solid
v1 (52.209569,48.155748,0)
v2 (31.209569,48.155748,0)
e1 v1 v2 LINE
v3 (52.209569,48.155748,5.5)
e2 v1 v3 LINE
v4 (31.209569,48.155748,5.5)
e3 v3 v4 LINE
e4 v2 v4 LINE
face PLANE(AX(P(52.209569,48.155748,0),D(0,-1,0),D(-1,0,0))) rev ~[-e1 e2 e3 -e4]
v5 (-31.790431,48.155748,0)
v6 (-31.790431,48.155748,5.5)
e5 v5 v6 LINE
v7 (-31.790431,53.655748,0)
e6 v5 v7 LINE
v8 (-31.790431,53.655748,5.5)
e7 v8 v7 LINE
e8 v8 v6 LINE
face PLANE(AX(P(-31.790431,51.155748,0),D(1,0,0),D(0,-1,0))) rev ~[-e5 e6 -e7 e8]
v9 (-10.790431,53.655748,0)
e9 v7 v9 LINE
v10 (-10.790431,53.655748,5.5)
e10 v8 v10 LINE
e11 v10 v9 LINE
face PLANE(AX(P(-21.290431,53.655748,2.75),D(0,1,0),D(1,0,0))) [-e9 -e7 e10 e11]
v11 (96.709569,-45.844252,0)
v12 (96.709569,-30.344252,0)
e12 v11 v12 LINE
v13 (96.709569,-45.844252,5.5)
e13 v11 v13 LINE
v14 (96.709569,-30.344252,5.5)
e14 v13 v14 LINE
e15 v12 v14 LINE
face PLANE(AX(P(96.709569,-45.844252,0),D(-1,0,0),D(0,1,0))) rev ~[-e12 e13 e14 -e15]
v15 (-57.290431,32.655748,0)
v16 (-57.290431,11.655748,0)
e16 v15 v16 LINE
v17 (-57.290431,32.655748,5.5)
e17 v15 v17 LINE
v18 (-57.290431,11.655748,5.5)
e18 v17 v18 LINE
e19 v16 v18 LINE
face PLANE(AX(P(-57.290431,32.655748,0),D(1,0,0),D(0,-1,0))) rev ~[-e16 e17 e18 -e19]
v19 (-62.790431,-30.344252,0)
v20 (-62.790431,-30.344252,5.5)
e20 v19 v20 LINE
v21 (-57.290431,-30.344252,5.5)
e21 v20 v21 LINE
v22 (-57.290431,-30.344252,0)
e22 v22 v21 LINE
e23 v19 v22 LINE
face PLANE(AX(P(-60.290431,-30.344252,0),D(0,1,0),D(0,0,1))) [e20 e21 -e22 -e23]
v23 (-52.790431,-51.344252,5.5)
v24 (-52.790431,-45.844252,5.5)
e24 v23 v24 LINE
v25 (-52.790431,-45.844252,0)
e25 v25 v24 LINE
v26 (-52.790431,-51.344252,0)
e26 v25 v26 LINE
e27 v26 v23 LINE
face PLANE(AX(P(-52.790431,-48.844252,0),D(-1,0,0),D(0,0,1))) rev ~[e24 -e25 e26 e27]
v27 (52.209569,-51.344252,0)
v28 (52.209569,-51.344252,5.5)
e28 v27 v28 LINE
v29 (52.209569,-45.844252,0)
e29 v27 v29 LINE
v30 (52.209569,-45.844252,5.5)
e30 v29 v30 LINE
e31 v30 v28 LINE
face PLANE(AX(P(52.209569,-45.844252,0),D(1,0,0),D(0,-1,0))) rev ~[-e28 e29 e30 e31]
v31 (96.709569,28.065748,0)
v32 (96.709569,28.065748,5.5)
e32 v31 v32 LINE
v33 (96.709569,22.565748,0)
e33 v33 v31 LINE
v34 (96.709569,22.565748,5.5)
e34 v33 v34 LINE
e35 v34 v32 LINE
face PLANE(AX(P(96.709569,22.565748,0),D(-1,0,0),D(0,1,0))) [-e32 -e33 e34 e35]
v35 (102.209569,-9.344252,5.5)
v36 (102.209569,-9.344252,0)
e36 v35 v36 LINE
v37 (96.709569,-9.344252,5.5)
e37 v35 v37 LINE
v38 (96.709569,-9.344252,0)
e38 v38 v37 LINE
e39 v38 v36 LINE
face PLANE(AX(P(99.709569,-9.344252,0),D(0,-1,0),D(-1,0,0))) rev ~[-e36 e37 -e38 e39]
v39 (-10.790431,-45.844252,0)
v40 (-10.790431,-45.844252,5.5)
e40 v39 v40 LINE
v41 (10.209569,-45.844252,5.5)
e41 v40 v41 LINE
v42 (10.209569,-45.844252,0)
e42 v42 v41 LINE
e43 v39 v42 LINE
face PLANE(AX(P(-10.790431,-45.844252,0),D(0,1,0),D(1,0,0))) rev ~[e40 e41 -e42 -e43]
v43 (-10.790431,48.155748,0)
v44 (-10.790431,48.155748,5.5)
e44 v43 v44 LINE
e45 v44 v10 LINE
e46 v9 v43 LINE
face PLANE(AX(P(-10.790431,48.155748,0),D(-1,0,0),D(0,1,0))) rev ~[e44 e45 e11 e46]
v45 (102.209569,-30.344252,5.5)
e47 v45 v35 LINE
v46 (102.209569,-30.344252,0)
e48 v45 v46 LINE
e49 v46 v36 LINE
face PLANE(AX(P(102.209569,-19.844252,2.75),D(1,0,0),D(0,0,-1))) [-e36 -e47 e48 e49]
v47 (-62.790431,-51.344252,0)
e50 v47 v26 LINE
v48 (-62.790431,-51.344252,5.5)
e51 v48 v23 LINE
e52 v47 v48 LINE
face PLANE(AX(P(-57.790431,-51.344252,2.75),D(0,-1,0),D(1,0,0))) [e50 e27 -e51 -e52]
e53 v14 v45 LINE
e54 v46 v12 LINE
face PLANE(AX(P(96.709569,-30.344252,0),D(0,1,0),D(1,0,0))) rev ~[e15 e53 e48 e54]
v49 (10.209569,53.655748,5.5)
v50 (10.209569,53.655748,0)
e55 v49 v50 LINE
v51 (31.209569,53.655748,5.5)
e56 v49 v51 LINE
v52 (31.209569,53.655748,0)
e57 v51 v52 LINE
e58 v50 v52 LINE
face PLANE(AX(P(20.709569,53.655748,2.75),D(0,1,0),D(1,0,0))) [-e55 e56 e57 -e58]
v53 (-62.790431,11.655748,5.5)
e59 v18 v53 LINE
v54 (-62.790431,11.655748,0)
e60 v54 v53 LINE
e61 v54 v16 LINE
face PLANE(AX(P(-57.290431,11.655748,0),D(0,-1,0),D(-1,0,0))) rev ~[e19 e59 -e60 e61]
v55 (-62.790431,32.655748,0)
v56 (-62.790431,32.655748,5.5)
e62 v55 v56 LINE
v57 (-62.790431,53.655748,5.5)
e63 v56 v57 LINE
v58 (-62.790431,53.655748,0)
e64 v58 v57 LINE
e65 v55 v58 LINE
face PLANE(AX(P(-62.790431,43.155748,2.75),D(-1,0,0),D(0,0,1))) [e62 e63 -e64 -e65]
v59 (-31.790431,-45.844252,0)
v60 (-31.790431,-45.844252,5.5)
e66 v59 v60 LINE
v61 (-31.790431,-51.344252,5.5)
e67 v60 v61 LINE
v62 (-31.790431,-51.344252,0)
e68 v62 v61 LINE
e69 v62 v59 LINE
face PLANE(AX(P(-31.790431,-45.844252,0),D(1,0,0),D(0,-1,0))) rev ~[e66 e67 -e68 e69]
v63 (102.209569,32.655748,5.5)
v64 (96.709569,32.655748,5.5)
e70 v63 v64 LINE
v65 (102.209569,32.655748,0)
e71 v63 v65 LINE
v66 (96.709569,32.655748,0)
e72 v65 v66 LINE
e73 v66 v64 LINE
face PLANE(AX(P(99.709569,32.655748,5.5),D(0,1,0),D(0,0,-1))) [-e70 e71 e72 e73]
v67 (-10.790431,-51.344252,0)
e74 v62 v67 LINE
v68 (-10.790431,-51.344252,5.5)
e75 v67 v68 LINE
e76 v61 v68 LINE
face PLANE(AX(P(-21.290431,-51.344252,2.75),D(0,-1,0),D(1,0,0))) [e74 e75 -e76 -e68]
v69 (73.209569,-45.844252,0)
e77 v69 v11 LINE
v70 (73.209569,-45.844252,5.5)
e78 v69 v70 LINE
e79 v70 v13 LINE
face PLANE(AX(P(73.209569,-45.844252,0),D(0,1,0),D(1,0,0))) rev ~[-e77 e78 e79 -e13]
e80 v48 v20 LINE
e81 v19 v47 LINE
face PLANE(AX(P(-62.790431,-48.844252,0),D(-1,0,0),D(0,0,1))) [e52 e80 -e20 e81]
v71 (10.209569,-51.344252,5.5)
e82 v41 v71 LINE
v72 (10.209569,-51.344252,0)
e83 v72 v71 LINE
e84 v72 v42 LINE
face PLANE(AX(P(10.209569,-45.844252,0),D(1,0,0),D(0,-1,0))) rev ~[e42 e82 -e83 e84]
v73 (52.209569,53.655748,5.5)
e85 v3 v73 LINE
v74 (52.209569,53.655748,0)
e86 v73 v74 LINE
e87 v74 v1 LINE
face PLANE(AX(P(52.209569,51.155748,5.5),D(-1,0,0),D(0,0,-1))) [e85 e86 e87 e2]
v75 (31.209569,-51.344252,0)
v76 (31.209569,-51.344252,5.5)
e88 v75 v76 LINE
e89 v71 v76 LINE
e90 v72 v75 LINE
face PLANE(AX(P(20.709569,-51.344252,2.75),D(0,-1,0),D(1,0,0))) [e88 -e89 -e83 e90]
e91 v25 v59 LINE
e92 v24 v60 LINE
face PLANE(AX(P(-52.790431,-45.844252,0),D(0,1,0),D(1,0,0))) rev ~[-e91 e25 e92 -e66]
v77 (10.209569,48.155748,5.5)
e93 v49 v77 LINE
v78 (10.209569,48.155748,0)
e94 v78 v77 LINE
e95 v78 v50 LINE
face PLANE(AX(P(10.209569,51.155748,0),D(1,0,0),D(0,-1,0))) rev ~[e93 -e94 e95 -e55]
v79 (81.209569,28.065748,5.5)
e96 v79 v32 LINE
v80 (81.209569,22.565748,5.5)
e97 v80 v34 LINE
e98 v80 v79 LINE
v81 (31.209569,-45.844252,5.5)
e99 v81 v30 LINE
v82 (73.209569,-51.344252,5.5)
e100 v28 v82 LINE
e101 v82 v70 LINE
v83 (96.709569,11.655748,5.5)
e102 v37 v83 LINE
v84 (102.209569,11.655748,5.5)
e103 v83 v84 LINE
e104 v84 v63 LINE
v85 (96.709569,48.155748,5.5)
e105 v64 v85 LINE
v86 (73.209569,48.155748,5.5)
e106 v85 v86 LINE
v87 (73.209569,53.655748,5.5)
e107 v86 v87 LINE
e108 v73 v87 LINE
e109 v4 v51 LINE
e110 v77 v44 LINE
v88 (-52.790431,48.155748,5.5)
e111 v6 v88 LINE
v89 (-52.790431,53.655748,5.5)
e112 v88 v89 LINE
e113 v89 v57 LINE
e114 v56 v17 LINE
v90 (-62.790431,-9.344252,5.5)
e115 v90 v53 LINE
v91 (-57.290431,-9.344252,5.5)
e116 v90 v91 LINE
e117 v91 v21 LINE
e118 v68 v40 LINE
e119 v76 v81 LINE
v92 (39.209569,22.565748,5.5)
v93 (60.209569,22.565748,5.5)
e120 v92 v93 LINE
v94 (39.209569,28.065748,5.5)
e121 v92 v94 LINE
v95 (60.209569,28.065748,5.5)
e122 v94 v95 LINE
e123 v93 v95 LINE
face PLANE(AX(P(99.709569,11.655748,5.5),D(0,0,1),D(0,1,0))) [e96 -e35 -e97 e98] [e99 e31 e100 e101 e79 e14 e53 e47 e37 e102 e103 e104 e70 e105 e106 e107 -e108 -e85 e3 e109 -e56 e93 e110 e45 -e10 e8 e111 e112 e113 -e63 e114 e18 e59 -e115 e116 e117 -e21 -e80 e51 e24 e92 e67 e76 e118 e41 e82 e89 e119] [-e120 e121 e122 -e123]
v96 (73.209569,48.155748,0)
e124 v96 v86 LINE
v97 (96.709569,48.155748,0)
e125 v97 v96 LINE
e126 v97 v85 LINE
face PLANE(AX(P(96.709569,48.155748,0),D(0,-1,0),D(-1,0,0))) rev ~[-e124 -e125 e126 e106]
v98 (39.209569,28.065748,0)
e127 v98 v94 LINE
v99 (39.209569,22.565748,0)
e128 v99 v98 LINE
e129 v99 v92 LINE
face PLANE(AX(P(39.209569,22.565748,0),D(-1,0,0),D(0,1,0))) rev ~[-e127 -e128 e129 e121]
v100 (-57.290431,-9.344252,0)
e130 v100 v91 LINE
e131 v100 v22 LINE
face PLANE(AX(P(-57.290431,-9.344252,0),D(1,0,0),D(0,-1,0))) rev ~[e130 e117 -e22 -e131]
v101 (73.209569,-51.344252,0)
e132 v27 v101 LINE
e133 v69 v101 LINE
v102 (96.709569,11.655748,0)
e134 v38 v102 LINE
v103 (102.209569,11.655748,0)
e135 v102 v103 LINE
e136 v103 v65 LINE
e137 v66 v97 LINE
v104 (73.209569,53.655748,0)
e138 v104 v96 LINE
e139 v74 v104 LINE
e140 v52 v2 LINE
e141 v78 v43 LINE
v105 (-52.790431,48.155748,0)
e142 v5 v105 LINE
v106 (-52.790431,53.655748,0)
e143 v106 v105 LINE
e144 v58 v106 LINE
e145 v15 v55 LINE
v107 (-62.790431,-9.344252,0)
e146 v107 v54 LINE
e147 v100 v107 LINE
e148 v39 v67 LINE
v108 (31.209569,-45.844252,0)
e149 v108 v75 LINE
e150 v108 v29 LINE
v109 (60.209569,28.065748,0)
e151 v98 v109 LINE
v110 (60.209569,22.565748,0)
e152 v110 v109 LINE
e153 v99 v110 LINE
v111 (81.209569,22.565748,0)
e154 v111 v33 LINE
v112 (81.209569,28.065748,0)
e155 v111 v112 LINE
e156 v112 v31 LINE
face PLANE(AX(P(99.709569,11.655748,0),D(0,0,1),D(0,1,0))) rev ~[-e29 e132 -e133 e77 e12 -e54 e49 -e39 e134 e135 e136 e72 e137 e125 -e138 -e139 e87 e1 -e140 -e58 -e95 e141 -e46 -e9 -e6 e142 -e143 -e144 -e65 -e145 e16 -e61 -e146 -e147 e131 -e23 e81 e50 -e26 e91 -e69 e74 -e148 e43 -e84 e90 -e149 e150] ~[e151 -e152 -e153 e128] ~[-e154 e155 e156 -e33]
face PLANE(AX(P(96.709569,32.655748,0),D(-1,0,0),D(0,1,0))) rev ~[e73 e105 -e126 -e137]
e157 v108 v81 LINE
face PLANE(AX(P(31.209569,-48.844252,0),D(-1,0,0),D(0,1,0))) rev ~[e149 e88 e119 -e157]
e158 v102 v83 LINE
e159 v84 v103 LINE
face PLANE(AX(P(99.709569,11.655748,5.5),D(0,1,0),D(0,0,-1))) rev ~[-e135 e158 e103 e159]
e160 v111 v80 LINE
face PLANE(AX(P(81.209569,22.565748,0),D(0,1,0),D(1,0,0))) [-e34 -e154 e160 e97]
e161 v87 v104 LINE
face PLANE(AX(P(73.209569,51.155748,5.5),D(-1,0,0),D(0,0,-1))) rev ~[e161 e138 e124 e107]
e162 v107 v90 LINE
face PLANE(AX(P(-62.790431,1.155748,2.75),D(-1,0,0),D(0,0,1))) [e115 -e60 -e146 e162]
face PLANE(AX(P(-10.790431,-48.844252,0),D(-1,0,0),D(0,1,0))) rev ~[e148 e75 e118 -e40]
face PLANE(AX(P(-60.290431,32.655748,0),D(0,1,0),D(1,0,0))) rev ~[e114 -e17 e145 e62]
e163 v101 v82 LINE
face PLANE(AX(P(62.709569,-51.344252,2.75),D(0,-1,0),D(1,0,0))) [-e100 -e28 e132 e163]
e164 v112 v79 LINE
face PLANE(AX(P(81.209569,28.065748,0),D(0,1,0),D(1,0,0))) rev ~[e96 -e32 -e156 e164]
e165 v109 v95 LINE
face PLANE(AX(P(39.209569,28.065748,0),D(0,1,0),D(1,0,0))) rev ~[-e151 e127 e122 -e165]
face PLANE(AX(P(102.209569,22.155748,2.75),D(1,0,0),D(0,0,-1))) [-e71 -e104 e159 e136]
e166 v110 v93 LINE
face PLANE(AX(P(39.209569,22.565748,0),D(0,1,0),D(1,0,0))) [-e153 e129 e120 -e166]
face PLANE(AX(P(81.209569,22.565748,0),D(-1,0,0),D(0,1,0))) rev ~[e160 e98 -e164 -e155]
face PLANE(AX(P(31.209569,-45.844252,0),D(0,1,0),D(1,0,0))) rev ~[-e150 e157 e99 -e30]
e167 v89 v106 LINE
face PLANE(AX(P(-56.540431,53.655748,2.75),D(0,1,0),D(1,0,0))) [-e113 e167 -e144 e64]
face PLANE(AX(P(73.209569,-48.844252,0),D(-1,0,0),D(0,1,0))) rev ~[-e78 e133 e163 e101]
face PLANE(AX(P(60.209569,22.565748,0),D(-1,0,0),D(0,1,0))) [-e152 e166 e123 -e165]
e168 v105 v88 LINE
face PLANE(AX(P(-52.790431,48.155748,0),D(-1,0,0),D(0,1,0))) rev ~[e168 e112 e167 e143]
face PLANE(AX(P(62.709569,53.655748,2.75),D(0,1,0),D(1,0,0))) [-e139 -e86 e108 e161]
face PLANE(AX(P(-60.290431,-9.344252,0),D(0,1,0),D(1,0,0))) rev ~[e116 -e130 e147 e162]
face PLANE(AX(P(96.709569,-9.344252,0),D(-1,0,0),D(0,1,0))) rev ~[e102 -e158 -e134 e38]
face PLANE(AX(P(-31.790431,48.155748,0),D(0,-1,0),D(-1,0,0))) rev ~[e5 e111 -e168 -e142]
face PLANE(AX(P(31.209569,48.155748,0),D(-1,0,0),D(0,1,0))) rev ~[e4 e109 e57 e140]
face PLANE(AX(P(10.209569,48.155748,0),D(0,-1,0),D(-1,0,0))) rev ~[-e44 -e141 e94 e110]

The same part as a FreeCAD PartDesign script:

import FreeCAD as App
import Part
import Sketcher

V = App.Vector

doc = App.newDocument("Part")
body = doc.addObject("PartDesign::Body", "Body")

# Sketch on XY plane
sketch1 = doc.addObject("Sketcher::SketchObject", "Sketch")
body.addObject(sketch1)
sketch1.AttachmentSupport = (doc.XY_Plane, [""])
sketch1.MapMode = "FlatFace"
sketch1.addGeometry([
    Part.LineSegment(V(-60.3, -48.8, 0), V(-52.8, -48.8, 0)),  # 0
    Part.LineSegment(V(-52.8, -48.8, 0), V(-52.8, -45.8, 0)),  # 1
    Part.LineSegment(V(-52.8, -45.8, 0), V(-31.8, -45.8, 0)),  # 2
    Part.LineSegment(V(-31.8, -45.8, 0), V(-31.8, -48.8, 0)),  # 3
    Part.LineSegment(V(-31.8, -48.8, 0), V(-10.8, -48.8, 0)),  # 4
    Part.LineSegment(V(-10.8, -48.8, 0), V(-10.8, -45.8, 0)),  # 5
    Part.LineSegment(V(-10.8, -45.8, 0), V(10.2, -45.8, 0)),  # 6
    Part.LineSegment(V(10.2, -45.8, 0), V(10.2, -48.8, 0)),  # 7
    Part.LineSegment(V(10.2, -48.8, 0), V(31.2, -48.8, 0)),  # 8
    Part.LineSegment(V(31.2, -48.8, 0), V(31.2, -45.8, 0)),  # 9
    Part.LineSegment(V(31.2, -45.8, 0), V(52.2, -45.8, 0)),  # 10
    Part.LineSegment(V(52.2, -45.8, 0), V(52.2, -48.8, 0)),  # 11
    Part.LineSegment(V(52.2, -48.8, 0), V(73.2, -48.8, 0)),  # 12
    Part.LineSegment(V(73.2, -48.8, 0), V(73.2, -45.8, 0)),  # 13
    Part.LineSegment(V(73.2, -45.8, 0), V(96.7, -45.8, 0)),  # 14
    Part.LineSegment(V(96.7, -45.8, 0), V(96.7, -30.3, 0)),  # 15
    Part.LineSegment(V(96.7, -30.3, 0), V(99.7, -30.3, 0)),  # 16
    Part.LineSegment(V(99.7, -30.3, 0), V(99.7, -9.3, 0)),  # 17
    Part.LineSegment(V(99.7, -9.3, 0), V(96.7, -9.3, 0)),  # 18
    Part.LineSegment(V(96.7, -9.3, 0), V(96.7, 11.7, 0)),  # 19
    Part.LineSegment(V(96.7, 11.7, 0), V(99.7, 11.7, 0)),  # 20
    Part.LineSegment(V(99.7, 11.7, 0), V(99.7, 32.7, 0)),  # 21
    Part.LineSegment(V(99.7, 32.7, 0), V(96.7, 32.7, 0)),  # 22
    Part.LineSegment(V(96.7, 32.7, 0), V(96.7, 48.2, 0)),  # 23
    Part.LineSegment(V(96.7, 48.2, 0), V(73.2, 48.2, 0)),  # 24
    Part.LineSegment(V(73.2, 48.2, 0), V(73.2, 51.2, 0)),  # 25
    Part.LineSegment(V(73.2, 51.2, 0), V(52.2, 51.2, 0)),  # 26
    Part.LineSegment(V(52.2, 51.2, 0), V(52.2, 48.2, 0)),  # 27
    Part.LineSegment(V(52.2, 48.2, 0), V(31.2, 48.2, 0)),  # 28
    Part.LineSegment(V(31.2, 48.2, 0), V(31.2, 51.2, 0)),  # 29
    Part.LineSegment(V(31.2, 51.2, 0), V(10.2, 51.2, 0)),  # 30
    Part.LineSegment(V(10.2, 51.2, 0), V(10.2, 48.2, 0)),  # 31
    Part.LineSegment(V(10.2, 48.2, 0), V(-10.8, 48.2, 0)),  # 32
    Part.LineSegment(V(-10.8, 48.2, 0), V(-10.8, 51.2, 0)),  # 33
    Part.LineSegment(V(-10.8, 51.2, 0), V(-31.8, 51.2, 0)),  # 34
    Part.LineSegment(V(-31.8, 51.2, 0), V(-31.8, 48.2, 0)),  # 35
    Part.LineSegment(V(-31.8, 48.2, 0), V(-52.8, 48.2, 0)),  # 36
    Part.LineSegment(V(-52.8, 48.2, 0), V(-52.8, 51.2, 0)),  # 37
    Part.LineSegment(V(-52.8, 51.2, 0), V(-60.3, 51.2, 0)),  # 38
    Part.LineSegment(V(-60.3, 51.2, 0), V(-60.3, 32.7, 0)),  # 39
    Part.LineSegment(V(-60.3, 32.7, 0), V(-57.3, 32.7, 0)),  # 40
    Part.LineSegment(V(-57.3, 32.7, 0), V(-57.3, 11.7, 0)),  # 41
    Part.LineSegment(V(-57.3, 11.7, 0), V(-60.3, 11.7, 0)),  # 42
    Part.LineSegment(V(-60.3, 11.7, 0), V(-60.3, -9.3, 0)),  # 43
    Part.LineSegment(V(-60.3, -9.3, 0), V(-57.3, -9.3, 0)),  # 44
    Part.LineSegment(V(-57.3, -9.3, 0), V(-57.3, -30.3, 0)),  # 45
    Part.LineSegment(V(-57.3, -30.3, 0), V(-60.3, -30.3, 0)),  # 46
    Part.LineSegment(V(-60.3, -30.3, 0), V(-60.3, -48.8, 0)),  # 47
    Part.LineSegment(V(60.2, 22.6, 0), V(39.2, 22.6, 0)),  # 48
    Part.LineSegment(V(39.2, 22.6, 0), V(39.2, 28.1, 0)),  # 49
    Part.LineSegment(V(39.2, 28.1, 0), V(60.2, 28.1, 0)),  # 50
    Part.LineSegment(V(60.2, 28.1, 0), V(60.2, 22.6, 0)),  # 51
    Part.LineSegment(V(96.7, 22.6, 0), V(81.2, 22.6, 0)),  # 52
    Part.LineSegment(V(81.2, 22.6, 0), V(81.2, 28.1, 0)),  # 53
    Part.LineSegment(V(81.2, 28.1, 0), V(96.7, 28.1, 0)),  # 54
    Part.LineSegment(V(96.7, 28.1, 0), V(96.7, 22.6, 0)),  # 55
], False)
sketch1.addConstraint([
    Sketcher.Constraint("Coincident", 0, 2, 1, 1),
    Sketcher.Constraint("Coincident", 1, 2, 2, 1),
    Sketcher.Constraint("Coincident", 2, 2, 3, 1),
    Sketcher.Constraint("Coincident", 3, 2, 4, 1),
    Sketcher.Constraint("Coincident", 4, 2, 5, 1),
    Sketcher.Constraint("Coincident", 5, 2, 6, 1),
    Sketcher.Constraint("Coincident", 6, 2, 7, 1),
    Sketcher.Constraint("Coincident", 7, 2, 8, 1),
    Sketcher.Constraint("Coincident", 8, 2, 9, 1),
    Sketcher.Constraint("Coincident", 9, 2, 10, 1),
    Sketcher.Constraint("Coincident", 10, 2, 11, 1),
    Sketcher.Constraint("Coincident", 11, 2, 12, 1),
    Sketcher.Constraint("Coincident", 12, 2, 13, 1),
    Sketcher.Constraint("Coincident", 13, 2, 14, 1),
    Sketcher.Constraint("Coincident", 14, 2, 15, 1),
    Sketcher.Constraint("Coincident", 15, 2, 16, 1),
    Sketcher.Constraint("Coincident", 16, 2, 17, 1),
    Sketcher.Constraint("Coincident", 17, 2, 18, 1),
    Sketcher.Constraint("Coincident", 18, 2, 19, 1),
    Sketcher.Constraint("Coincident", 19, 2, 20, 1),
    Sketcher.Constraint("Coincident", 20, 2, 21, 1),
    Sketcher.Constraint("Coincident", 21, 2, 22, 1),
    Sketcher.Constraint("Coincident", 22, 2, 23, 1),
    Sketcher.Constraint("Coincident", 23, 2, 24, 1),
    Sketcher.Constraint("Coincident", 24, 2, 25, 1),
    Sketcher.Constraint("Coincident", 25, 2, 26, 1),
    Sketcher.Constraint("Coincident", 26, 2, 27, 1),
    Sketcher.Constraint("Coincident", 27, 2, 28, 1),
    Sketcher.Constraint("Coincident", 28, 2, 29, 1),
    Sketcher.Constraint("Coincident", 29, 2, 30, 1),
    Sketcher.Constraint("Coincident", 30, 2, 31, 1),
    Sketcher.Constraint("Coincident", 31, 2, 32, 1),
    Sketcher.Constraint("Coincident", 32, 2, 33, 1),
    Sketcher.Constraint("Coincident", 33, 2, 34, 1),
    Sketcher.Constraint("Coincident", 34, 2, 35, 1),
    Sketcher.Constraint("Coincident", 35, 2, 36, 1),
    Sketcher.Constraint("Coincident", 36, 2, 37, 1),
    Sketcher.Constraint("Coincident", 37, 2, 38, 1),
    Sketcher.Constraint("Coincident", 38, 2, 39, 1),
    Sketcher.Constraint("Coincident", 39, 2, 40, 1),
    Sketcher.Constraint("Coincident", 40, 2, 41, 1),
    Sketcher.Constraint("Coincident", 41, 2, 42, 1),
    Sketcher.Constraint("Coincident", 42, 2, 43, 1),
    Sketcher.Constraint("Coincident", 43, 2, 44, 1),
    Sketcher.Constraint("Coincident", 44, 2, 45, 1),
    Sketcher.Constraint("Coincident", 45, 2, 46, 1),
    Sketcher.Constraint("Coincident", 46, 2, 47, 1),
    Sketcher.Constraint("Coincident", 47, 2, 0, 1),
    Sketcher.Constraint("Coincident", 48, 2, 49, 1),
    Sketcher.Constraint("Coincident", 49, 2, 50, 1),
    Sketcher.Constraint("Coincident", 50, 2, 51, 1),
    Sketcher.Constraint("Coincident", 51, 2, 48, 1),
    Sketcher.Constraint("Coincident", 52, 2, 53, 1),
    Sketcher.Constraint("Coincident", 53, 2, 54, 1),
    Sketcher.Constraint("Coincident", 54, 2, 55, 1),
    Sketcher.Constraint("Coincident", 55, 2, 52, 1),
    Sketcher.Constraint("Horizontal", 0),
    Sketcher.Constraint("Vertical", 1),
    Sketcher.Constraint("Horizontal", 2),
    Sketcher.Constraint("Vertical", 3),
    Sketcher.Constraint("Horizontal", 4),
    Sketcher.Constraint("Vertical", 5),
    Sketcher.Constraint("Horizontal", 6),
    Sketcher.Constraint("Vertical", 7),
    Sketcher.Constraint("Horizontal", 8),
    Sketcher.Constraint("Vertical", 9),
    Sketcher.Constraint("Horizontal", 10),
    Sketcher.Constraint("Vertical", 11),
    Sketcher.Constraint("Horizontal", 12),
    Sketcher.Constraint("Vertical", 13),
    Sketcher.Constraint("Horizontal", 14),
    Sketcher.Constraint("Vertical", 15),
    Sketcher.Constraint("Horizontal", 16),
    Sketcher.Constraint("Vertical", 17),
    Sketcher.Constraint("Horizontal", 18),
    Sketcher.Constraint("Vertical", 19),
    Sketcher.Constraint("Horizontal", 20),
    Sketcher.Constraint("Vertical", 21),
    Sketcher.Constraint("Horizontal", 22),
    Sketcher.Constraint("Vertical", 23),
    Sketcher.Constraint("Horizontal", 24),
    Sketcher.Constraint("Vertical", 25),
    Sketcher.Constraint("Horizontal", 26),
    Sketcher.Constraint("Vertical", 27),
    Sketcher.Constraint("Horizontal", 28),
    Sketcher.Constraint("Vertical", 29),
    Sketcher.Constraint("Horizontal", 30),
    Sketcher.Constraint("Vertical", 31),
    Sketcher.Constraint("Horizontal", 32),
    Sketcher.Constraint("Vertical", 33),
    Sketcher.Constraint("Horizontal", 34),
    Sketcher.Constraint("Vertical", 35),
    Sketcher.Constraint("Horizontal", 36),
    Sketcher.Constraint("Vertical", 37),
    Sketcher.Constraint("Horizontal", 38),
    Sketcher.Constraint("Vertical", 39),
    Sketcher.Constraint("Horizontal", 40),
    Sketcher.Constraint("Vertical", 41),
    Sketcher.Constraint("Horizontal", 42),
    Sketcher.Constraint("Vertical", 43),
    Sketcher.Constraint("Horizontal", 44),
    Sketcher.Constraint("Vertical", 45),
    Sketcher.Constraint("Horizontal", 46),
    Sketcher.Constraint("Vertical", 47),
    Sketcher.Constraint("Horizontal", 48),
    Sketcher.Constraint("Vertical", 49),
    Sketcher.Constraint("Horizontal", 50),
    Sketcher.Constraint("Vertical", 51),
    Sketcher.Constraint("Horizontal", 52),
    Sketcher.Constraint("Vertical", 53),
    Sketcher.Constraint("Horizontal", 54),
    Sketcher.Constraint("Vertical", 55),
    Sketcher.Constraint("Horizontal", 0, 2, 3, 2),
    Sketcher.Constraint("Horizontal", 2, 2, 5, 2),
    Sketcher.Constraint("Horizontal", 4, 2, 7, 2),
    Sketcher.Constraint("Horizontal", 6, 2, 9, 2),
    Sketcher.Constraint("Horizontal", 8, 2, 11, 2),
    Sketcher.Constraint("Horizontal", 10, 2, 13, 2),
    Sketcher.Constraint("Horizontal", 24, 2, 27, 2),
    Sketcher.Constraint("Horizontal", 26, 2, 29, 2),
    Sketcher.Constraint("Horizontal", 28, 2, 31, 2),
    Sketcher.Constraint("Horizontal", 30, 2, 33, 2),
    Sketcher.Constraint("Horizontal", 32, 2, 35, 2),
    Sketcher.Constraint("Horizontal", 34, 2, 37, 2),
    Sketcher.Constraint("Horizontal", 22, 2, 39, 2),
    Sketcher.Constraint("Horizontal", 20, 2, 41, 2),
    Sketcher.Constraint("Horizontal", 18, 2, 43, 2),
    Sketcher.Constraint("Horizontal", 16, 2, 45, 2),
    Sketcher.Constraint("Horizontal", 51, 2, 52, 2),
    Sketcher.Constraint("Horizontal", 50, 2, 53, 2),
    Sketcher.Constraint("Vertical", 15, 2, 18, 2),
    Sketcher.Constraint("Vertical", 17, 2, 20, 2),
    Sketcher.Constraint("Vertical", 19, 2, 22, 2),
    Sketcher.Constraint("Vertical", 13, 2, 24, 2),
    Sketcher.Constraint("Vertical", 11, 2, 26, 2),
    Sketcher.Constraint("Vertical", 9, 2, 28, 2),
    Sketcher.Constraint("Vertical", 7, 2, 30, 2),
    Sketcher.Constraint("Vertical", 5, 2, 32, 2),
    Sketcher.Constraint("Vertical", 3, 2, 34, 2),
    Sketcher.Constraint("Vertical", 1, 2, 36, 2),
    Sketcher.Constraint("Vertical", 39, 2, 42, 2),
    Sketcher.Constraint("Vertical", 41, 2, 44, 2),
    Sketcher.Constraint("Vertical", 43, 2, 46, 2),
    Sketcher.Constraint("Vertical", 23, 2, 54, 2),
    Sketcher.Constraint("Equal", 2, 4),
    Sketcher.Constraint("Equal", 4, 6),
    Sketcher.Constraint("Equal", 6, 8),
    Sketcher.Constraint("Equal", 8, 10),
    Sketcher.Constraint("Equal", 10, 12),
    Sketcher.Constraint("Equal", 22, 40),
    Sketcher.Constraint("Equal", 36, 48),
    Sketcher.Constraint("Equal", 46, 1),
    Sketcher.Constraint("Equal", 54, 15),
    Sketcher.Constraint("Equal", 50, 17),
    Sketcher.Constraint("Equal", 17, 19),
    Sketcher.Constraint("Equal", 19, 21),
    Sketcher.Constraint("Equal", 15, 23),
    Sketcher.Constraint("Equal", 13, 25),
    Sketcher.Constraint("DistanceX", 2, 1, 2, 2, 21.0),
    Sketcher.Constraint("DistanceX", 16, 1, 16, 2, 3.0),
    Sketcher.Constraint("DistanceX", 0, 1, 0, 2, 7.5),
    Sketcher.Constraint("DistanceX", 14, 1, 14, 2, 23.5),
    Sketcher.Constraint("DistanceX", 52, 2, 52, 1, 15.5),
    Sketcher.Constraint("DistanceY", 49, 1, 49, 2, 5.5),
    Sketcher.Constraint("DistanceX", 28, 2, 48, 2, 8.0),
    Sketcher.Constraint("DistanceY", 48, 2, 28, 2, 25.59),
    Sketcher.Constraint("DistanceX", 0, 2, -1, 1, 52.790431),
    Sketcher.Constraint("DistanceY", 0, 2, -1, 1, 48.844252),
])
pad1 = doc.addObject("PartDesign::Pad", "Pad")
body.addObject(pad1)
pad1.Profile = sketch1
pad1.Length = 5.5

# Sketch on XZ plane
sketch2 = doc.addObject("Sketcher::SketchObject", "Sketch001")
body.addObject(sketch2)
sketch2.AttachmentSupport = (doc.XZ_Plane, [""])
sketch2.MapMode = "FlatFace"
sketch2.AttachmentOffset = App.Placement(V(0, 0, -51.155748), App.Rotation())
sketch2.addGeometry([
    Part.LineSegment(V(52, 0, 0), V(52, 6, 0)),  # 0
    Part.LineSegment(V(52, 6, 0), V(73, 6, 0)),  # 1
    Part.LineSegment(V(73, 6, 0), V(73, 0, 0)),  # 2
    Part.LineSegment(V(73, 0, 0), V(52, 0, 0)),  # 3
    Part.LineSegment(V(10, 0, 0), V(10, 6, 0)),  # 4
    Part.LineSegment(V(10, 6, 0), V(31, 6, 0)),  # 5
    Part.LineSegment(V(31, 6, 0), V(31, 0, 0)),  # 6
    Part.LineSegment(V(31, 0, 0), V(10, 0, 0)),  # 7
    Part.LineSegment(V(-32, 0, 0), V(-32, 6, 0)),  # 8
    Part.LineSegment(V(-32, 6, 0), V(-11, 6, 0)),  # 9
    Part.LineSegment(V(-11, 6, 0), V(-11, 0, 0)),  # 10
    Part.LineSegment(V(-11, 0, 0), V(-32, 0, 0)),  # 11
    Part.LineSegment(V(-60, 0, 0), V(-60, 6, 0)),  # 12
    Part.LineSegment(V(-60, 6, 0), V(-53, 6, 0)),  # 13
    Part.LineSegment(V(-53, 6, 0), V(-53, 0, 0)),  # 14
    Part.LineSegment(V(-53, 0, 0), V(-60, 0, 0)),  # 15
], False)
sketch2.addConstraint([
    Sketcher.Constraint("Coincident", 0, 2, 1, 1),
    Sketcher.Constraint("Coincident", 1, 2, 2, 1),
    Sketcher.Constraint("Coincident", 2, 2, 3, 1),
    Sketcher.Constraint("Coincident", 3, 2, 0, 1),
    Sketcher.Constraint("Coincident", 4, 2, 5, 1),
    Sketcher.Constraint("Coincident", 5, 2, 6, 1),
    Sketcher.Constraint("Coincident", 6, 2, 7, 1),
    Sketcher.Constraint("Coincident", 7, 2, 4, 1),
    Sketcher.Constraint("Coincident", 8, 2, 9, 1),
    Sketcher.Constraint("Coincident", 9, 2, 10, 1),
    Sketcher.Constraint("Coincident", 10, 2, 11, 1),
    Sketcher.Constraint("Coincident", 11, 2, 8, 1),
    Sketcher.Constraint("Coincident", 12, 2, 13, 1),
    Sketcher.Constraint("Coincident", 13, 2, 14, 1),
    Sketcher.Constraint("Coincident", 14, 2, 15, 1),
    Sketcher.Constraint("Coincident", 15, 2, 12, 1),
    Sketcher.Constraint("Vertical", 0),
    Sketcher.Constraint("Horizontal", 1),
    Sketcher.Constraint("Vertical", 2),
    Sketcher.Constraint("Horizontal", 3),
    Sketcher.Constraint("Vertical", 4),
    Sketcher.Constraint("Horizontal", 5),
    Sketcher.Constraint("Vertical", 6),
    Sketcher.Constraint("Horizontal", 7),
    Sketcher.Constraint("Vertical", 8),
    Sketcher.Constraint("Horizontal", 9),
    Sketcher.Constraint("Vertical", 10),
    Sketcher.Constraint("Horizontal", 11),
    Sketcher.Constraint("Vertical", 12),
    Sketcher.Constraint("Horizontal", 13),
    Sketcher.Constraint("Vertical", 14),
    Sketcher.Constraint("Horizontal", 15),
    Sketcher.Constraint("PointOnObject", 2, 2, -1),
    Sketcher.Constraint("PointOnObject", 6, 2, -1),
    Sketcher.Constraint("PointOnObject", 10, 2, -1),
    Sketcher.Constraint("PointOnObject", 14, 2, -1),
    Sketcher.Constraint("Horizontal", 1, 2, 4, 2),
    Sketcher.Constraint("Horizontal", 5, 2, 8, 2),
    Sketcher.Constraint("Horizontal", 9, 2, 12, 2),
    Sketcher.Constraint("Equal", 3, 5),
    Sketcher.Constraint("Equal", 7, 9),
    Sketcher.Constraint("DistanceX", 1, 1, 1, 2, 21.0),
    Sketcher.Constraint("DistanceX", 13, 1, 13, 2, 7.5),
    Sketcher.Constraint("DistanceY", 0, 1, 0, 2, 5.5),
    Sketcher.Constraint("DistanceX", 4, 2, 0, 2, 42.0),
    Sketcher.Constraint("DistanceX", 8, 2, 4, 2, 42.0),
    Sketcher.Constraint("DistanceX", 13, 2, 8, 2, 21.0),
    Sketcher.Constraint("DistanceX", -1, 1, 0, 2, 52.209569),
])
pad2 = doc.addObject("PartDesign::Pad", "Pad001")
body.addObject(pad2)
pad2.Profile = sketch2
pad2.Length = 2.5
pad2.Reversed = True

# Sketch on YZ plane
sketch3 = doc.addObject("Sketcher::SketchObject", "Sketch002")
body.addObject(sketch3)
sketch3.AttachmentSupport = (doc.YZ_Plane, [""])
sketch3.MapMode = "FlatFace"
sketch3.AttachmentOffset = App.Placement(V(0, 0, -60.290431), App.Rotation())
sketch3.addGeometry([
    Part.LineSegment(V(-30, 0, 0), V(-49, 0, 0)),  # 0
    Part.LineSegment(V(-49, 0, 0), V(-49, 6, 0)),  # 1
    Part.LineSegment(V(-49, 6, 0), V(-30, 6, 0)),  # 2
    Part.LineSegment(V(-30, 6, 0), V(-30, 0, 0)),  # 3
    Part.LineSegment(V(12, 0, 0), V(-9, 0, 0)),  # 4
    Part.LineSegment(V(-9, 0, 0), V(-9, 6, 0)),  # 5
    Part.LineSegment(V(-9, 6, 0), V(12, 6, 0)),  # 6
    Part.LineSegment(V(12, 6, 0), V(12, 0, 0)),  # 7
    Part.LineSegment(V(54, 0, 0), V(33, 0, 0)),  # 8
    Part.LineSegment(V(33, 0, 0), V(33, 6, 0)),  # 9
    Part.LineSegment(V(33, 6, 0), V(54, 6, 0)),  # 10
    Part.LineSegment(V(54, 6, 0), V(54, 0, 0)),  # 11
], False)
sketch3.addConstraint([
    Sketcher.Constraint("Coincident", 0, 2, 1, 1),
    Sketcher.Constraint("Coincident", 1, 2, 2, 1),
    Sketcher.Constraint("Coincident", 2, 2, 3, 1),
    Sketcher.Constraint("Coincident", 3, 2, 0, 1),
    Sketcher.Constraint("Coincident", 4, 2, 5, 1),
    Sketcher.Constraint("Coincident", 5, 2, 6, 1),
    Sketcher.Constraint("Coincident", 6, 2, 7, 1),
    Sketcher.Constraint("Coincident", 7, 2, 4, 1),
    Sketcher.Constraint("Coincident", 8, 2, 9, 1),
    Sketcher.Constraint("Coincident", 9, 2, 10, 1),
    Sketcher.Constraint("Coincident", 10, 2, 11, 1),
    Sketcher.Constraint("Coincident", 11, 2, 8, 1),
    Sketcher.Constraint("Horizontal", 0),
    Sketcher.Constraint("Vertical", 1),
    Sketcher.Constraint("Horizontal", 2),
    Sketcher.Constraint("Vertical", 3),
    Sketcher.Constraint("Horizontal", 4),
    Sketcher.Constraint("Vertical", 5),
    Sketcher.Constraint("Horizontal", 6),
    Sketcher.Constraint("Vertical", 7),
    Sketcher.Constraint("Horizontal", 8),
    Sketcher.Constraint("Vertical", 9),
    Sketcher.Constraint("Horizontal", 10),
    Sketcher.Constraint("Vertical", 11),
    Sketcher.Constraint("PointOnObject", 0, 2, -1),
    Sketcher.Constraint("PointOnObject", 4, 2, -1),
    Sketcher.Constraint("PointOnObject", 8, 2, -1),
    Sketcher.Constraint("Horizontal", 2, 2, 5, 2),
    Sketcher.Constraint("Horizontal", 6, 2, 9, 2),
    Sketcher.Constraint("Equal", 6, 8),
    Sketcher.Constraint("DistanceX", 4, 2, 4, 1, 21.0),
    Sketcher.Constraint("DistanceX", 0, 2, 0, 1, 18.5),
    Sketcher.Constraint("DistanceY", 1, 1, 1, 2, 5.5),
    Sketcher.Constraint("DistanceX", 3, 2, 4, 2, 21.0),
    Sketcher.Constraint("DistanceX", 7, 2, 8, 2, 21.0),
    Sketcher.Constraint("DistanceX", 0, 2, -1, 1, 48.844252),
])
pad3 = doc.addObject("PartDesign::Pad", "Pad002")
body.addObject(pad3)
pad3.Profile = sketch3
pad3.Length = 2.5
pad3.Reversed = True

# Sketch on XZ plane
sketch4 = doc.addObject("Sketcher::SketchObject", "Sketch003")
body.addObject(sketch4)
sketch4.AttachmentSupport = (doc.XZ_Plane, [""])
sketch4.MapMode = "FlatFace"
sketch4.AttachmentOffset = App.Placement(V(0, 0, 48.844252), App.Rotation())
sketch4.addGeometry([
    Part.LineSegment(V(-63, 6, 0), V(-63, 0, 0)),  # 0
    Part.LineSegment(V(-63, 0, 0), V(-53, 0, 0)),  # 1
    Part.LineSegment(V(-53, 0, 0), V(-53, 6, 0)),  # 2
    Part.LineSegment(V(-53, 6, 0), V(-63, 6, 0)),  # 3
    Part.LineSegment(V(-32, 6, 0), V(-32, 0, 0)),  # 4
    Part.LineSegment(V(-32, 0, 0), V(-11, 0, 0)),  # 5
    Part.LineSegment(V(-11, 0, 0), V(-11, 6, 0)),  # 6
    Part.LineSegment(V(-11, 6, 0), V(-32, 6, 0)),  # 7
    Part.LineSegment(V(10, 6, 0), V(10, 0, 0)),  # 8
    Part.LineSegment(V(10, 0, 0), V(31, 0, 0)),  # 9
    Part.LineSegment(V(31, 0, 0), V(31, 6, 0)),  # 10
    Part.LineSegment(V(31, 6, 0), V(10, 6, 0)),  # 11
    Part.LineSegment(V(52, 6, 0), V(52, 0, 0)),  # 12
    Part.LineSegment(V(52, 0, 0), V(73, 0, 0)),  # 13
    Part.LineSegment(V(73, 0, 0), V(73, 6, 0)),  # 14
    Part.LineSegment(V(73, 6, 0), V(52, 6, 0)),  # 15
], False)
sketch4.addConstraint([
    Sketcher.Constraint("Coincident", 0, 2, 1, 1),
    Sketcher.Constraint("Coincident", 1, 2, 2, 1),
    Sketcher.Constraint("Coincident", 2, 2, 3, 1),
    Sketcher.Constraint("Coincident", 3, 2, 0, 1),
    Sketcher.Constraint("Coincident", 4, 2, 5, 1),
    Sketcher.Constraint("Coincident", 5, 2, 6, 1),
    Sketcher.Constraint("Coincident", 6, 2, 7, 1),
    Sketcher.Constraint("Coincident", 7, 2, 4, 1),
    Sketcher.Constraint("Coincident", 8, 2, 9, 1),
    Sketcher.Constraint("Coincident", 9, 2, 10, 1),
    Sketcher.Constraint("Coincident", 10, 2, 11, 1),
    Sketcher.Constraint("Coincident", 11, 2, 8, 1),
    Sketcher.Constraint("Coincident", 12, 2, 13, 1),
    Sketcher.Constraint("Coincident", 13, 2, 14, 1),
    Sketcher.Constraint("Coincident", 14, 2, 15, 1),
    Sketcher.Constraint("Coincident", 15, 2, 12, 1),
    Sketcher.Constraint("Vertical", 0),
    Sketcher.Constraint("Horizontal", 1),
    Sketcher.Constraint("Vertical", 2),
    Sketcher.Constraint("Horizontal", 3),
    Sketcher.Constraint("Vertical", 4),
    Sketcher.Constraint("Horizontal", 5),
    Sketcher.Constraint("Vertical", 6),
    Sketcher.Constraint("Horizontal", 7),
    Sketcher.Constraint("Vertical", 8),
    Sketcher.Constraint("Horizontal", 9),
    Sketcher.Constraint("Vertical", 10),
    Sketcher.Constraint("Horizontal", 11),
    Sketcher.Constraint("Vertical", 12),
    Sketcher.Constraint("Horizontal", 13),
    Sketcher.Constraint("Vertical", 14),
    Sketcher.Constraint("Horizontal", 15),
    Sketcher.Constraint("PointOnObject", 0, 2, -1),
    Sketcher.Constraint("PointOnObject", 4, 2, -1),
    Sketcher.Constraint("PointOnObject", 8, 2, -1),
    Sketcher.Constraint("PointOnObject", 12, 2, -1),
    Sketcher.Constraint("Horizontal", 3, 2, 6, 2),
    Sketcher.Constraint("Horizontal", 7, 2, 10, 2),
    Sketcher.Constraint("Horizontal", 11, 2, 14, 2),
    Sketcher.Constraint("Equal", 7, 9),
    Sketcher.Constraint("Equal", 11, 13),
    Sketcher.Constraint("DistanceX", 1, 1, 1, 2, 10.0),
    Sketcher.Constraint("DistanceX", 5, 1, 5, 2, 21.0),
    Sketcher.Constraint("DistanceY", 0, 2, 0, 1, 5.5),
    Sketcher.Constraint("DistanceX", 1, 2, 4, 2, 21.0),
    Sketcher.Constraint("DistanceX", 5, 2, 8, 2, 21.0),
    Sketcher.Constraint("DistanceX", 9, 2, 12, 2, 21.0),
    Sketcher.Constraint("DistanceX", 0, 2, -1, 1, 62.790431),
])
pad4 = doc.addObject("PartDesign::Pad", "Pad003")
body.addObject(pad4)
pad4.Profile = sketch4
pad4.Length = 2.5

# Sketch on YZ plane
sketch5 = doc.addObject("Sketcher::SketchObject", "Sketch004")
body.addObject(sketch5)
sketch5.AttachmentSupport = (doc.YZ_Plane, [""])
sketch5.MapMode = "FlatFace"
sketch5.AttachmentOffset = App.Placement(V(0, 0, 99.709569), App.Rotation())
sketch5.addGeometry([
    Part.LineSegment(V(33, 6, 0), V(12, 6, 0)),  # 0
    Part.LineSegment(V(12, 6, 0), V(12, 0, 0)),  # 1
    Part.LineSegment(V(12, 0, 0), V(33, 0, 0)),  # 2
    Part.LineSegment(V(33, 0, 0), V(33, 6, 0)),  # 3
    Part.LineSegment(V(-9, 6, 0), V(-30, 6, 0)),  # 4
    Part.LineSegment(V(-30, 6, 0), V(-30, 0, 0)),  # 5
    Part.LineSegment(V(-30, 0, 0), V(-9, 0, 0)),  # 6
    Part.LineSegment(V(-9, 0, 0), V(-9, 6, 0)),  # 7
], False)
sketch5.addConstraint([
    Sketcher.Constraint("Coincident", 0, 2, 1, 1),
    Sketcher.Constraint("Coincident", 1, 2, 2, 1),
    Sketcher.Constraint("Coincident", 2, 2, 3, 1),
    Sketcher.Constraint("Coincident", 3, 2, 0, 1),
    Sketcher.Constraint("Coincident", 4, 2, 5, 1),
    Sketcher.Constraint("Coincident", 5, 2, 6, 1),
    Sketcher.Constraint("Coincident", 6, 2, 7, 1),
    Sketcher.Constraint("Coincident", 7, 2, 4, 1),
    Sketcher.Constraint("Horizontal", 0),
    Sketcher.Constraint("Vertical", 1),
    Sketcher.Constraint("Horizontal", 2),
    Sketcher.Constraint("Vertical", 3),
    Sketcher.Constraint("Horizontal", 4),
    Sketcher.Constraint("Vertical", 5),
    Sketcher.Constraint("Horizontal", 6),
    Sketcher.Constraint("Vertical", 7),
    Sketcher.Constraint("PointOnObject", 1, 2, -1),
    Sketcher.Constraint("PointOnObject", 5, 2, -1),
    Sketcher.Constraint("Horizontal", 3, 2, 4, 2),
    Sketcher.Constraint("Equal", 2, 4),
    Sketcher.Constraint("DistanceX", 0, 2, 0, 1, 21.0),
    Sketcher.Constraint("DistanceY", 1, 2, 1, 1, 5.5),
    Sketcher.Constraint("DistanceX", 4, 2, 0, 2, 42.0),
    Sketcher.Constraint("DistanceX", -1, 1, 0, 2, 11.655748),
])
pad5 = doc.addObject("PartDesign::Pad", "Pad004")
body.addObject(pad5)
pad5.Profile = sketch5
pad5.Length = 2.5

doc.recompute()
